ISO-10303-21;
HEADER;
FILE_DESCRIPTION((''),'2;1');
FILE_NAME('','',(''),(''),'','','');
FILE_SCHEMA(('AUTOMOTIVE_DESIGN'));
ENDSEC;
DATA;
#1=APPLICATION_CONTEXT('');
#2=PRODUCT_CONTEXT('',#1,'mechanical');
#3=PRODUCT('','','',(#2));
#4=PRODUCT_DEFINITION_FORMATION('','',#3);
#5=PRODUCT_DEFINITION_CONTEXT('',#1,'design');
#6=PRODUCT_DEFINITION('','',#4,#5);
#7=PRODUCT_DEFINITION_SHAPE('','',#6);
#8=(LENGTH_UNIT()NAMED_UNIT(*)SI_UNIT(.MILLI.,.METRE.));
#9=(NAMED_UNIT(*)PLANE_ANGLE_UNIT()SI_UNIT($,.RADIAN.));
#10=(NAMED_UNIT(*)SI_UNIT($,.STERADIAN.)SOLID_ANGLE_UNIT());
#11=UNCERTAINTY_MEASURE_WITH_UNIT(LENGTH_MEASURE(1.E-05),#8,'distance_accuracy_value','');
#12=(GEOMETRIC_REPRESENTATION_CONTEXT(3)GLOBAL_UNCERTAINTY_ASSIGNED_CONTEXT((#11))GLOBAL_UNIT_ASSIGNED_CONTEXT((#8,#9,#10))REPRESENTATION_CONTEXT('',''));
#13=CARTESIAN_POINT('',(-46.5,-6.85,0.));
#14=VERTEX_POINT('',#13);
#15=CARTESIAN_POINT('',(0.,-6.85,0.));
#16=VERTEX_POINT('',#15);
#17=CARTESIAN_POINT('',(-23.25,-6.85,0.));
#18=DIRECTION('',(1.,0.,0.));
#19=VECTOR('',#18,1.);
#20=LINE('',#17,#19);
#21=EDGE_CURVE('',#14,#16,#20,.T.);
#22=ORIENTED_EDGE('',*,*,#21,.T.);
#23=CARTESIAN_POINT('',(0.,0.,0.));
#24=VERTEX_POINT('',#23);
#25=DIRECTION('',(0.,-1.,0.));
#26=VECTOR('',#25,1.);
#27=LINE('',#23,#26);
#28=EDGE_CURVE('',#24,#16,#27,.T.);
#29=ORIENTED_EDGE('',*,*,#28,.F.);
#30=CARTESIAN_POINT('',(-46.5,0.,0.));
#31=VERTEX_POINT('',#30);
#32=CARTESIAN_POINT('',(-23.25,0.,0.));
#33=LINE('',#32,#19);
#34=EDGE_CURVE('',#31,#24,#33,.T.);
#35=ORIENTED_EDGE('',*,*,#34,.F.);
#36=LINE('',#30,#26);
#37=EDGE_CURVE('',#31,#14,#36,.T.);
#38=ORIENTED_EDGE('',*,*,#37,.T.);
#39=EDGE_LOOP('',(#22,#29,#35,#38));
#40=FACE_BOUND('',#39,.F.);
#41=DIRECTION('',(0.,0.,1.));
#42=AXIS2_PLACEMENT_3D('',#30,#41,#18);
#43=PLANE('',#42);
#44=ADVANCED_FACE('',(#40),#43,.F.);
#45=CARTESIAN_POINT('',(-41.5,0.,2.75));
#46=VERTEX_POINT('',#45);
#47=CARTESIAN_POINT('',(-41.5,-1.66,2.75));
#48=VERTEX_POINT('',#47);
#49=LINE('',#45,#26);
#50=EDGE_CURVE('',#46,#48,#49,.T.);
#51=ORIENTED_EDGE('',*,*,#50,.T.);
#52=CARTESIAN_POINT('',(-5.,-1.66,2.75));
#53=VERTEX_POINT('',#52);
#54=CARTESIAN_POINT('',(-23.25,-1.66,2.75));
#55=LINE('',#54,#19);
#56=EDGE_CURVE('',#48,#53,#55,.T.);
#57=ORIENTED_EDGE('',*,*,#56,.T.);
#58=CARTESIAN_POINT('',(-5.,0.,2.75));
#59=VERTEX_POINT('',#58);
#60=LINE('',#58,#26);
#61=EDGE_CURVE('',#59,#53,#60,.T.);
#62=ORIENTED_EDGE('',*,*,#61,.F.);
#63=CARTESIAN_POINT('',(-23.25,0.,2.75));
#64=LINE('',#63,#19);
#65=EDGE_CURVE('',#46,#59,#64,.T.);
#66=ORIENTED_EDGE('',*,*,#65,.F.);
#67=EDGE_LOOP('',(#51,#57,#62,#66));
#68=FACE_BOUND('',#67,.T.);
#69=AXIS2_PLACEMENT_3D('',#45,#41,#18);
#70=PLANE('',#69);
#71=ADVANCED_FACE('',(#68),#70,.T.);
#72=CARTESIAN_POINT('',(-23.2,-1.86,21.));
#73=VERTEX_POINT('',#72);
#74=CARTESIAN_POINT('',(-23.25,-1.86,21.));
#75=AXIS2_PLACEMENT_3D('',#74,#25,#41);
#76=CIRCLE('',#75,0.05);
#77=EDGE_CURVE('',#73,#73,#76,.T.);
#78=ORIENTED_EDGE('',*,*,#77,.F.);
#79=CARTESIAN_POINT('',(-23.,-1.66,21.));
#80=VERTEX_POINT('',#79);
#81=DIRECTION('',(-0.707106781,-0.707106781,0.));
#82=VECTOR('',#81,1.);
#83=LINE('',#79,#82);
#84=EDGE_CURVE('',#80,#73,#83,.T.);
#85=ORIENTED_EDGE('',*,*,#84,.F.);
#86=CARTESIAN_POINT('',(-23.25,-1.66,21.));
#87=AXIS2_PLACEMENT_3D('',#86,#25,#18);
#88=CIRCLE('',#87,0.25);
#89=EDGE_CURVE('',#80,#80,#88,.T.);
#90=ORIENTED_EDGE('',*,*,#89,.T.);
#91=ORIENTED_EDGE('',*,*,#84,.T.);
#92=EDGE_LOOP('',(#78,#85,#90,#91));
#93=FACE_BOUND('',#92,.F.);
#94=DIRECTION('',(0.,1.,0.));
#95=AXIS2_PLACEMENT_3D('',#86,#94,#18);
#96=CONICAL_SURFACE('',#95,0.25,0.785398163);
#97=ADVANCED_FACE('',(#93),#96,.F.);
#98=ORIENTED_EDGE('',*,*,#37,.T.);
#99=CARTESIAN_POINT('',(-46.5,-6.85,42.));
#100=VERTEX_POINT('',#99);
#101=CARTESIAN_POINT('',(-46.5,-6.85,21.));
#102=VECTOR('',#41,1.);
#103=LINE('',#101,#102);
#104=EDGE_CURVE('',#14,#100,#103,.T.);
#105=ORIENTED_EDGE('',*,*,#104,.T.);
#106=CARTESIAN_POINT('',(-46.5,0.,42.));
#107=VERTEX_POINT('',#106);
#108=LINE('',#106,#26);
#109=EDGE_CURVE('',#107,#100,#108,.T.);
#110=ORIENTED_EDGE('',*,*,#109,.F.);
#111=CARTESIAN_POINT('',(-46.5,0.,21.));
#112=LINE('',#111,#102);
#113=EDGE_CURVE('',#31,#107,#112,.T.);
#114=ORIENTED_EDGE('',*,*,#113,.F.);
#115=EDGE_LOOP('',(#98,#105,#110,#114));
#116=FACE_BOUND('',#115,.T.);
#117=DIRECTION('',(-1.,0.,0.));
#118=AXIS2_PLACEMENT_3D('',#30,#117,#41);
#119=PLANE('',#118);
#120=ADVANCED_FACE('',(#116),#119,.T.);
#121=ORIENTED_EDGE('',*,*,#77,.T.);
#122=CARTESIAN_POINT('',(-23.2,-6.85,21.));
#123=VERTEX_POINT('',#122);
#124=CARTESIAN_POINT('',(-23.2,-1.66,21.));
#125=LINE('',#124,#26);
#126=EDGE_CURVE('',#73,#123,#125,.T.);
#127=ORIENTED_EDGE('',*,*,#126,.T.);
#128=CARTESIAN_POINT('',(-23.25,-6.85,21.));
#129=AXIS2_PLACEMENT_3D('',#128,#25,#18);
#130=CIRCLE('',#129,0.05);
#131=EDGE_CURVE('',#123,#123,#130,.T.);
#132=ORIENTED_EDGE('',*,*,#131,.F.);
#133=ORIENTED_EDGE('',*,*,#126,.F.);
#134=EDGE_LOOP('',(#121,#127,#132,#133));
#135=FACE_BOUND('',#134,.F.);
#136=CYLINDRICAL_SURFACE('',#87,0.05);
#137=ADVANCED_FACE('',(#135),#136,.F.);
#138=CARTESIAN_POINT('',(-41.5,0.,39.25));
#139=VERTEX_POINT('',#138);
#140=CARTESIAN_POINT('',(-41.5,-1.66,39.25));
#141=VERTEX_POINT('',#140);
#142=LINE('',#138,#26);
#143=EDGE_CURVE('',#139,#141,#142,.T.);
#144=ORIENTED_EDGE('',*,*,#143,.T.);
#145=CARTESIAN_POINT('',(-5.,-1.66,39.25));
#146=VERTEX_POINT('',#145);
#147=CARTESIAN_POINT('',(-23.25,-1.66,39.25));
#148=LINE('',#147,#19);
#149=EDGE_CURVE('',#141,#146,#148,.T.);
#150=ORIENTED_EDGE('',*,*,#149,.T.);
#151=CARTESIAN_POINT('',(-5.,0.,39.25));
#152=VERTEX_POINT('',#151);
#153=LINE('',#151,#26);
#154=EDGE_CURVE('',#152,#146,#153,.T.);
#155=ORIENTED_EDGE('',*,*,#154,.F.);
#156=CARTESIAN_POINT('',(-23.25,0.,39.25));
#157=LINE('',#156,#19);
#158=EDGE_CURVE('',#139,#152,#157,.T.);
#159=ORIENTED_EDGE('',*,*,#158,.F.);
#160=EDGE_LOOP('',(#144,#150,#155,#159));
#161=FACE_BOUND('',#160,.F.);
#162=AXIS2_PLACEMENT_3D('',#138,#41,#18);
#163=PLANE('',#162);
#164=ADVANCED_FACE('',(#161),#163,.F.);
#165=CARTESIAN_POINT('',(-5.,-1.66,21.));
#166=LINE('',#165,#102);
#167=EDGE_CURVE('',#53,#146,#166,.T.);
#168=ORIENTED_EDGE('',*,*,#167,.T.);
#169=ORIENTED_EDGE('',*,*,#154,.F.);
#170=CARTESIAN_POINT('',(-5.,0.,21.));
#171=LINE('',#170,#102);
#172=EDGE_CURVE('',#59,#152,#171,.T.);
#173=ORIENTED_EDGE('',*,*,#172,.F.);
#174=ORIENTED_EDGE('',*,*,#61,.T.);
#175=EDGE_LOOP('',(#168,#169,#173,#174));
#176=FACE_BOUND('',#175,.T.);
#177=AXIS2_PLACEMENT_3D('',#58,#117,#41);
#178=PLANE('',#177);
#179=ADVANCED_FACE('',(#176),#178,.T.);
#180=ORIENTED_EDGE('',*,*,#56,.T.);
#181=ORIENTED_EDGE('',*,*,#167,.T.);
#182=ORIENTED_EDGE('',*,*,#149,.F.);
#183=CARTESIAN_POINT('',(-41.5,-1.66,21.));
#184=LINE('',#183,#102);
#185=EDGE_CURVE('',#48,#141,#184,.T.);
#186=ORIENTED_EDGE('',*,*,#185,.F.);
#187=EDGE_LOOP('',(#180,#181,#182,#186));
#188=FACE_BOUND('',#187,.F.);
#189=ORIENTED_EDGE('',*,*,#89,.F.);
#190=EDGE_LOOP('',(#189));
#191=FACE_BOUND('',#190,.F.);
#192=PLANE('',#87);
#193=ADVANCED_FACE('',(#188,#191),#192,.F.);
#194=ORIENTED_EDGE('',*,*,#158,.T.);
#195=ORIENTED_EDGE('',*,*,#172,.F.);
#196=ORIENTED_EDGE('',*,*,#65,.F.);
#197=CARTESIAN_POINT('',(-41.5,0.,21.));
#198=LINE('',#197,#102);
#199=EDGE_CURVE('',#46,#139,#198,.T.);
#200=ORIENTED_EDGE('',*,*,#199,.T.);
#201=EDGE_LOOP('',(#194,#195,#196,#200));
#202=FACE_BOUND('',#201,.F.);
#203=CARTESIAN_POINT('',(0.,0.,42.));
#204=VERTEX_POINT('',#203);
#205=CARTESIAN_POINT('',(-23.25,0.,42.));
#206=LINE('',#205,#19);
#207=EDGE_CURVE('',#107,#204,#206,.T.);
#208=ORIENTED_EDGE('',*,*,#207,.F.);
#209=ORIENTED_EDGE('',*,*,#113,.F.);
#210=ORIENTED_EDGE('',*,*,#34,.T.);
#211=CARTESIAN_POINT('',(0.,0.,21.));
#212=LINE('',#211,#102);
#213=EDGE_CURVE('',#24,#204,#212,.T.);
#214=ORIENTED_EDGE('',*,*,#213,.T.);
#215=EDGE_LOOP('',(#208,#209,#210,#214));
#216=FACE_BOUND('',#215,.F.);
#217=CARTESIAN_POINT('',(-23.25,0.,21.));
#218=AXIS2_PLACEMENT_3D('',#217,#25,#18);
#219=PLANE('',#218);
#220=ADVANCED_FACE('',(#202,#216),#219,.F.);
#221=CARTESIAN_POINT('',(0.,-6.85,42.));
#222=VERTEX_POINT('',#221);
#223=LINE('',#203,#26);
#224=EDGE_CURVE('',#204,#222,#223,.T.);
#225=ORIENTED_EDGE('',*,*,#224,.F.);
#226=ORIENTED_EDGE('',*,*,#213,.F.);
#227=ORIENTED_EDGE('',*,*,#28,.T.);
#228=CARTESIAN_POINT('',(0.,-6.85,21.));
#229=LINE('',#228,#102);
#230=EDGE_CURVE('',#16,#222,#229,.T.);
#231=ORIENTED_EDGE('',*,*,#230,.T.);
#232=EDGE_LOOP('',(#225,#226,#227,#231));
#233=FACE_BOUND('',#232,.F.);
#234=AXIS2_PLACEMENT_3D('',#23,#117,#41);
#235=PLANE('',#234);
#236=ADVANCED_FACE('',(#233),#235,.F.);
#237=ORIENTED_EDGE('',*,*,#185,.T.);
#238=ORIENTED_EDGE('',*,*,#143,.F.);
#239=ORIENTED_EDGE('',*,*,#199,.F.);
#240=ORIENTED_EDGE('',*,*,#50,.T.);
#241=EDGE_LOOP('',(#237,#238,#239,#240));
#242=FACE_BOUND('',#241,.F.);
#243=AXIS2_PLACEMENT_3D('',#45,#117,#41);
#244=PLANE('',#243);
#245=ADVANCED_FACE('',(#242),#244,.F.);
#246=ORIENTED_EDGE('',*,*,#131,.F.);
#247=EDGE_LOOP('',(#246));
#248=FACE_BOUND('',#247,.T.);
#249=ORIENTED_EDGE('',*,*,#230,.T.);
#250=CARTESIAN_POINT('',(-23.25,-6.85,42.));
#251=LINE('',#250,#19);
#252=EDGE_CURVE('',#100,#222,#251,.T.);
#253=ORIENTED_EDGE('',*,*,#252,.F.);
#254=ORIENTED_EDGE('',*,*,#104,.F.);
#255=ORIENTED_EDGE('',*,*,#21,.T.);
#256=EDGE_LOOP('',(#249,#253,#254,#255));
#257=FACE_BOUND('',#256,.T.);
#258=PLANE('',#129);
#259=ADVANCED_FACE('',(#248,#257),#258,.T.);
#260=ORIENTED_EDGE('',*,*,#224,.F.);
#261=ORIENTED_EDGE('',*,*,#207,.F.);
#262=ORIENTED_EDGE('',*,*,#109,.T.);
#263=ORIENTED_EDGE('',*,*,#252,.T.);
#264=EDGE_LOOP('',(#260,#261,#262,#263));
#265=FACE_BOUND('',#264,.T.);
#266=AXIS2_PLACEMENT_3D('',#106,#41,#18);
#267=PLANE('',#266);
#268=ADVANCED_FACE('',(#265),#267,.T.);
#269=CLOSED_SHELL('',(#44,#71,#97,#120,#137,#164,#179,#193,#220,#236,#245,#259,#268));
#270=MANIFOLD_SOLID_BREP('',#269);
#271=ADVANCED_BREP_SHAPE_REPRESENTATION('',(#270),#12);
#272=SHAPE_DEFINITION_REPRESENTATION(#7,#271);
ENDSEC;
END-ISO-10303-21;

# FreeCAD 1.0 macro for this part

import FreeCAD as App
import Part
import Sketcher
Q = App.Units.Quantity


def add_polygon(sketch, points):
    """Adds a closed chain of lines whose ends are joined by coincident constraints."""
    first, n = sketch.GeometryCount, len(points)
    for a, b in zip(points, points[1:] + points[:1]):
        sketch.addGeometry(Part.LineSegment(App.Vector(*a, 0), App.Vector(*b, 0)), False)
    for i in range(n):
        sketch.addConstraint(Sketcher.Constraint("Coincident", first + i, 2, first + (i + 1) % n, 1))

doc = App.newDocument("Part")
params = doc.addObject("Spreadsheet::Sheet", "Params")
for row, (alias, value) in enumerate([
    ("sketch1_height", "42 mm"),
    ("sketch1_width", "46.5 mm"),
    ("pad1_length", "6.85 mm"),
    ("sketch2_width", "36.5 mm"),
    ("pocket1_length", "1.66 mm"),
    ("sketch3_diameter", "0.1 mm"),
    ("hole_diameter", "0.1 mm"),
    ("hole_csink_diameter", "0.5 mm"),
], start=1):
    params.set(f"A{row}", alias)
    params.set(f"B{row}", "=" + value)
    params.setAlias(f"B{row}", alias)

body = doc.addObject("PartDesign::Body", "Body")

# Sketch on XZ plane
sketch1 = body.newObject("Sketcher::SketchObject", "Sketch")
sketch1.AttachmentSupport = (doc.getObject("XZ_Plane"), [""])
sketch1.MapMode = "FlatFace"
add_polygon(sketch1, [(-46.5, 42), (-46.5, 0), (0, 0), (0, 42)])  # lines 0-3
sketch1.addConstraint(Sketcher.Constraint("Vertical", 0))
sketch1.addConstraint(Sketcher.Constraint("Horizontal", 1))
sketch1.addConstraint(Sketcher.Constraint("Vertical", 2))
sketch1.addConstraint(Sketcher.Constraint("Horizontal", 3))
sketch1.addConstraint(Sketcher.Constraint("Coincident", 1, 2, -1, 1))
sketch1.addConstraint(Sketcher.Constraint("DistanceY", 0, 2, 0, 1, Q("42 mm")))
sketch1.addConstraint(Sketcher.Constraint("DistanceX", 1, 1, 1, 2, Q("46.5 mm")))
sketch1.setExpression("Constraints[9]", "Params.sketch1_height")
sketch1.setExpression("Constraints[10]", "Params.sketch1_width")
pad1 = body.newObject("PartDesign::Pad", "Pad")
pad1.Profile = sketch1
pad1.setExpression("Length", "Params.pad1_length")

# Sketch on XZ plane
sketch2 = body.newObject("Sketcher::SketchObject", "Sketch001")
sketch2.AttachmentSupport = (doc.getObject("XZ_Plane"), [""])
sketch2.MapMode = "FlatFace"
add_polygon(sketch2, [(-41.5, 39.25), (-41.5, 2.75), (-5, 2.75), (-5, 39.25)])  # lines 0-3
sketch2.addConstraint(Sketcher.Constraint("Vertical", 0))
sketch2.addConstraint(Sketcher.Constraint("Horizontal", 1))
sketch2.addConstraint(Sketcher.Constraint("Vertical", 2))
sketch2.addConstraint(Sketcher.Constraint("Horizontal", 3))
sketch2.addConstraint(Sketcher.Constraint("Equal", 3, 0))
sketch2.addConstraint(Sketcher.Constraint("DistanceX", 1, 1, 1, 2, Q("36.5 mm")))
sketch2.addConstraint(Sketcher.Constraint("DistanceX", 1, 2, -1, 1, Q("5 mm")))
sketch2.addConstraint(Sketcher.Constraint("DistanceY", -1, 1, 0, 2, Q("2.75 mm")))
sketch2.setExpression("Constraints[9]", "Params.sketch2_width")
pocket1 = body.newObject("PartDesign::Pocket", "Pocket")
pocket1.Profile = sketch2
pocket1.setExpression("Length", "Params.pocket1_length")
pocket1.Reversed = True

# Sketch on XZ plane
sketch3 = body.newObject("Sketcher::SketchObject", "Sketch002")
sketch3.AttachmentSupport = (doc.getObject("XZ_Plane"), [""])
sketch3.MapMode = "FlatFace"
sketch3.AttachmentOffset = App.Placement(App.Vector(0, 0, 1.66), App.Rotation())
sketch3.addGeometry(Part.Circle(App.Vector(-23.25, 21, 0), App.Vector(0, 0, 1), 0.05), False)
sketch3.addConstraint(Sketcher.Constraint("Diameter", 0, Q("0.1 mm")))
sketch3.addConstraint(Sketcher.Constraint("DistanceY", -1, 1, 0, 3, Q("21 mm")))
sketch3.addConstraint(Sketcher.Constraint("DistanceX", 0, 3, -1, 1, Q("23.25 mm")))
sketch3.setExpression("Constraints[0]", "Params.sketch3_diameter")
doc.recompute()
hole = body.newObject("PartDesign::Hole", "Hole")
hole.Profile = sketch3
hole.ThreadType = "None"
hole.setExpression("Diameter", "Params.hole_diameter")
hole.DepthType = "ThroughAll"
hole.HoleCutType = "Countersink"
hole.setExpression("HoleCutDiameter", "Params.hole_csink_diameter")
hole.HoleCutCountersinkAngle = 90
hole.Reversed = True

doc.recompute()
